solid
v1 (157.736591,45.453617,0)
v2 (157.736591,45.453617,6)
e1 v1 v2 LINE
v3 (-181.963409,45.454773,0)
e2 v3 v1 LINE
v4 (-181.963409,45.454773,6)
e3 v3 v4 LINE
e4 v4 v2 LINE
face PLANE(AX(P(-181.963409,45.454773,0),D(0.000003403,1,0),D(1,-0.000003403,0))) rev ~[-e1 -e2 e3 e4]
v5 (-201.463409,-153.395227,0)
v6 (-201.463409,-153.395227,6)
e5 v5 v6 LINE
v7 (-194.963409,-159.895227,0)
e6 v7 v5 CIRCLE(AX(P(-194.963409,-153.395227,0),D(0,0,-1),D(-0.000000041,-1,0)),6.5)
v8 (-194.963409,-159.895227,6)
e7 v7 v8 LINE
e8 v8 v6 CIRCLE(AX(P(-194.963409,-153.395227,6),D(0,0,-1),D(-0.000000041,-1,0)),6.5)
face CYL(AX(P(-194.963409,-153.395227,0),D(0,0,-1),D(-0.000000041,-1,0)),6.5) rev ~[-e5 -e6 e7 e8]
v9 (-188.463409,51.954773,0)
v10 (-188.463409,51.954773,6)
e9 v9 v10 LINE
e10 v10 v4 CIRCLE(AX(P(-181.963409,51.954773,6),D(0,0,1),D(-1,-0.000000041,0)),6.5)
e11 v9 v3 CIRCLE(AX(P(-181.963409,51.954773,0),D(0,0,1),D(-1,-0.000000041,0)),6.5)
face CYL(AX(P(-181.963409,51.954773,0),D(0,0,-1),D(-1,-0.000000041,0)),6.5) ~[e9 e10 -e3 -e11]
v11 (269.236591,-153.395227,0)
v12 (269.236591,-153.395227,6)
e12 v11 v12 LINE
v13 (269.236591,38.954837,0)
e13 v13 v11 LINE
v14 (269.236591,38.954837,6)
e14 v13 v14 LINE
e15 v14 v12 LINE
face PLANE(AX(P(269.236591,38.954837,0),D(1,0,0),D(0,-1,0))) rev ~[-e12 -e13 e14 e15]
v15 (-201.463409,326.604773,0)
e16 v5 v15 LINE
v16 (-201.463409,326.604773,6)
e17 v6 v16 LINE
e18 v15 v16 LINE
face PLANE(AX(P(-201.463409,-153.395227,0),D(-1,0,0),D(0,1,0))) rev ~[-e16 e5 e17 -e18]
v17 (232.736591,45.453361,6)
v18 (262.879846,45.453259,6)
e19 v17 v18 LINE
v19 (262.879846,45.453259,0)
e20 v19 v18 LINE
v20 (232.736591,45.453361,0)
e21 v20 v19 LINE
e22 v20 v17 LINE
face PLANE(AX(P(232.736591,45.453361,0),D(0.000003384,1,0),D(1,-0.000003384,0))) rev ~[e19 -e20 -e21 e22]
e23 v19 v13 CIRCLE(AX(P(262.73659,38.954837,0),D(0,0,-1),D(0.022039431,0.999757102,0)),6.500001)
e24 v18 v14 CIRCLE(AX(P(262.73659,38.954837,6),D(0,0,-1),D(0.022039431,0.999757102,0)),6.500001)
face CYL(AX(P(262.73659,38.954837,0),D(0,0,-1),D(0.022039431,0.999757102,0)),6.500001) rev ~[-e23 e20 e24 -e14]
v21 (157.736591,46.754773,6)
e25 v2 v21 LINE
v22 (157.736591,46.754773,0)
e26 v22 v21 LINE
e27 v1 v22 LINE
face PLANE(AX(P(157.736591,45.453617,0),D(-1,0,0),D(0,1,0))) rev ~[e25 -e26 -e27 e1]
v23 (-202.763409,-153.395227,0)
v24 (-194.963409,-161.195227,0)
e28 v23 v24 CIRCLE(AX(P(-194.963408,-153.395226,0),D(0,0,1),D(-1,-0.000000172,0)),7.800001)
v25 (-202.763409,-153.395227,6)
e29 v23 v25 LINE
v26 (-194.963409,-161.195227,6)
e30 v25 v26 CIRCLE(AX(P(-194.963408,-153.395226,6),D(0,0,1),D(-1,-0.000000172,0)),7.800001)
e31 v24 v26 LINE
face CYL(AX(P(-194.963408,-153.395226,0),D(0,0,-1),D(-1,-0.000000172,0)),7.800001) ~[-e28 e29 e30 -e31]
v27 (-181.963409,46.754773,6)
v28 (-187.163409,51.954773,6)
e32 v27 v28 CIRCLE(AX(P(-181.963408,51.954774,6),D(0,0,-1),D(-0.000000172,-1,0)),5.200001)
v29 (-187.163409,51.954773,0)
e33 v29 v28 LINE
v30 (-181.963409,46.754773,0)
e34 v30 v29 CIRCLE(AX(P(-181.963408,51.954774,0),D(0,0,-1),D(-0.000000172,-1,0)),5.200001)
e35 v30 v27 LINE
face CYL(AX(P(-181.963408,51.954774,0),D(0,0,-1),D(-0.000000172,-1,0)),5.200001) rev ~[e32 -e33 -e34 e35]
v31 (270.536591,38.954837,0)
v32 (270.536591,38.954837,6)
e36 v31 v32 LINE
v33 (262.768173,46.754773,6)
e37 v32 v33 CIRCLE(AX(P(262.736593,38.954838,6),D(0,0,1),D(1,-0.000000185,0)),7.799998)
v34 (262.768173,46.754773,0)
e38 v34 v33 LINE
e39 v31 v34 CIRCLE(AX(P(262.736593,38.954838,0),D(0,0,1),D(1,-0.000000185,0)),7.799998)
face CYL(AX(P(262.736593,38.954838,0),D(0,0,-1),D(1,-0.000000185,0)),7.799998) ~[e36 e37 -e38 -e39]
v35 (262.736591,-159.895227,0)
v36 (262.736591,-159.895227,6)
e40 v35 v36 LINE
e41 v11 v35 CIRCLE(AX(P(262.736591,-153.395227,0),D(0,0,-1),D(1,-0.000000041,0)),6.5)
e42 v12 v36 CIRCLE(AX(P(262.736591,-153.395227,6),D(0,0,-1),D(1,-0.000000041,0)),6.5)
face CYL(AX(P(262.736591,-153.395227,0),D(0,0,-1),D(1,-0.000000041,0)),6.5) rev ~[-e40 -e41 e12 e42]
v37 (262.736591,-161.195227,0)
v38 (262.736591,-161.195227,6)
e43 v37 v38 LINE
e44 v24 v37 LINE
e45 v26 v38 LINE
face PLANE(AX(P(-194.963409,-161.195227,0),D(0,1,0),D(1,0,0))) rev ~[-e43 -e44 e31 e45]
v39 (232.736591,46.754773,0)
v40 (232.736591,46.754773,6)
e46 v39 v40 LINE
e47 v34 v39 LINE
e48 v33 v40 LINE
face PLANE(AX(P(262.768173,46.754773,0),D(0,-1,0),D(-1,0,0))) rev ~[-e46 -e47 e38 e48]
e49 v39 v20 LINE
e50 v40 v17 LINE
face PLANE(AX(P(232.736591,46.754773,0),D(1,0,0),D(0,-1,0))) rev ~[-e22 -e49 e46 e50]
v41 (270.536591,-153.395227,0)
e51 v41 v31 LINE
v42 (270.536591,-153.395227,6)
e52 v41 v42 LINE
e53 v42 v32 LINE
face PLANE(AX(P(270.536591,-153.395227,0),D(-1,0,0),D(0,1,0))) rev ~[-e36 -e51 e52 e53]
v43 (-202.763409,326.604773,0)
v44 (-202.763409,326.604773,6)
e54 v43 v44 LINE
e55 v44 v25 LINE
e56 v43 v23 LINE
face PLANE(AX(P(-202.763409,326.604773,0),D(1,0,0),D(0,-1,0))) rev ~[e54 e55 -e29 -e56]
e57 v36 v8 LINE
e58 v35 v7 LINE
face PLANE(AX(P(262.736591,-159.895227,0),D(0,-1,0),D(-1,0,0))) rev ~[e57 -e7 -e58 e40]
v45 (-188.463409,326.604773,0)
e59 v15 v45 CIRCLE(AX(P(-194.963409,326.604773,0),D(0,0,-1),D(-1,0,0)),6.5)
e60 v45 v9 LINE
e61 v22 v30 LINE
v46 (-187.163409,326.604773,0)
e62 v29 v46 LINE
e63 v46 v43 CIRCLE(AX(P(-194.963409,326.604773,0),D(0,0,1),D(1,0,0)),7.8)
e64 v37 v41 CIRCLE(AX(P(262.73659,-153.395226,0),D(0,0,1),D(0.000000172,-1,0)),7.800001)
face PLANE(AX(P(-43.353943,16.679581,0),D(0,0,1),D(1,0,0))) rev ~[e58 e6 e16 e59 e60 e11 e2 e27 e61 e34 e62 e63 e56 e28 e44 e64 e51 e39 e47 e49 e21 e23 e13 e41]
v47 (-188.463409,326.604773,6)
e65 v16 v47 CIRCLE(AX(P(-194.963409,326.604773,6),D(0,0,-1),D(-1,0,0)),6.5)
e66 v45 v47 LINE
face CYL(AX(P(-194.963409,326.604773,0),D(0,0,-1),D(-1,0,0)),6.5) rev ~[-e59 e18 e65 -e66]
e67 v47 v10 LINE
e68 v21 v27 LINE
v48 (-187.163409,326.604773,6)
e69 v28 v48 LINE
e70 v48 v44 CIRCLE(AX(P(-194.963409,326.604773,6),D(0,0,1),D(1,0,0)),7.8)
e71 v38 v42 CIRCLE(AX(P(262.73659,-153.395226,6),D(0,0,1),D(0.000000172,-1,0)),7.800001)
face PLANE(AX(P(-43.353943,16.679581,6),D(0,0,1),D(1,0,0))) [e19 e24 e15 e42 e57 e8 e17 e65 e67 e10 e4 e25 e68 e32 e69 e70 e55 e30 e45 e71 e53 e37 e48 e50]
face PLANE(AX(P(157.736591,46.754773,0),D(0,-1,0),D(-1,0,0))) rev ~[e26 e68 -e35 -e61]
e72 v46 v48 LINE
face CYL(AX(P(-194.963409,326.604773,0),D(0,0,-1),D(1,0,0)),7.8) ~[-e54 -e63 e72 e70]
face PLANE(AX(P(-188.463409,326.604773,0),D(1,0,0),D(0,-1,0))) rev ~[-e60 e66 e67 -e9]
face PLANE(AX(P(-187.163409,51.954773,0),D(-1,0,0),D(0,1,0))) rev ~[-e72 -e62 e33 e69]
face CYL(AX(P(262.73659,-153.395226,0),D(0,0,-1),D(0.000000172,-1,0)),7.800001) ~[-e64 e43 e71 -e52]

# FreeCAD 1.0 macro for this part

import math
import FreeCAD as App
import Part
import Sketcher

V = App.Vector
Q = App.Units.Quantity

doc = App.newDocument("Part")
params = doc.addObject("Spreadsheet::Sheet", "Params")
for row, (alias, value) in enumerate([
    ("sketch1_radius", "6.5 mm"),
    ("sketch1_radius2", "5.200001 mm"),
    ("sketch1_height", "480 mm"),
    ("sketch1_width", "339.7 mm"),
    ("sketch1_width2", "457.7 mm"),
    ("pad1_length", "6 mm"),
], start=1):
    params.set(f"A{row}", alias)
    params.set(f"B{row}", "=" + value)
    params.setAlias(f"B{row}", alias)

body = doc.addObject("PartDesign::Body", "Body")

sketch1 = body.newObject("Sketcher::SketchObject", "Sketch")
sketch1.AttachmentSupport = (doc.getObject("XY_Plane"), [""])
sketch1.MapMode = "FlatFace"
sketch1.addGeometry([
    Part.ArcOfCircle(Part.Circle(V(-195, 326.6, 0), V(0, 0, 1), 6.5), math.radians(0), math.radians(180)),
    Part.LineSegment(V(-188.5, 326.6, 0), V(-188.5, 52, 0)),
    Part.ArcOfCircle(Part.Circle(V(-182, 52, 0), V(0, 0, 1), 6.5), math.radians(-180), math.radians(-90)),
    Part.LineSegment(V(-182, 45.5, 0), V(157.7, 45.5, 0)),
    Part.LineSegment(V(157.7, 45.5, 0), V(157.7, 46.8, 0)),
    Part.LineSegment(V(157.7, 46.8, 0), V(-182, 46.8, 0)),
    Part.ArcOfCircle(Part.Circle(V(-182, 52, 0), V(0, 0, 1), 5.2), math.radians(-180), math.radians(-90)),
    Part.LineSegment(V(-187.2, 52, 0), V(-187.2, 326.6, 0)),
    Part.ArcOfCircle(Part.Circle(V(-195, 326.6, 0), V(0, 0, 1), 7.8), math.radians(0), math.radians(180)),
    Part.LineSegment(V(-202.8, 326.6, 0), V(-202.8, -153.4, 0)),
    Part.ArcOfCircle(Part.Circle(V(-195, -153.4, 0), V(0, 0, 1), 7.8), math.radians(-180), math.radians(-90)),
    Part.LineSegment(V(-195, -161.2, 0), V(262.7, -161.2, 0)),
    Part.ArcOfCircle(Part.Circle(V(262.7, -153.4, 0), V(0, 0, 1), 7.8), math.radians(-90), math.radians(0)),
    Part.LineSegment(V(270.5, -153.4, 0), V(270.5, 39, 0)),
    Part.ArcOfCircle(Part.Circle(V(262.7, 39, 0), V(0, 0, 1), 7.8), math.radians(0), math.radians(90)),
    Part.LineSegment(V(262.8, 46.8, 0), V(232.7, 46.8, 0)),
    Part.LineSegment(V(232.7, 46.8, 0), V(232.7, 45.5, 0)),
    Part.LineSegment(V(232.7, 45.5, 0), V(262.9, 45.5, 0)),
    Part.ArcOfCircle(Part.Circle(V(262.7, 39, 0), V(0, 0, 1), 6.5), math.radians(0), math.radians(89)),
    Part.LineSegment(V(269.2, 39, 0), V(269.2, -153.4, 0)),
    Part.ArcOfCircle(Part.Circle(V(262.7, -153.4, 0), V(0, 0, 1), 6.5), math.radians(-90), math.radians(0)),
    Part.LineSegment(V(262.7, -159.9, 0), V(-195, -159.9, 0)),
    Part.ArcOfCircle(Part.Circle(V(-195, -153.4, 0), V(0, 0, 1), 6.5), math.radians(-180), math.radians(-90)),
    Part.LineSegment(V(-201.5, -153.4, 0), V(-201.5, 326.6, 0)),
], False)
sketch1.addConstraint([
    Sketcher.Constraint("Tangent", 0, 1, 1, 1),
    Sketcher.Constraint("Tangent", 1, 2, 2, 1),
    Sketcher.Constraint("Coincident", 2, 2, 3, 1),
    Sketcher.Constraint("Coincident", 3, 2, 4, 1),
    Sketcher.Constraint("Coincident", 4, 2, 5, 1),
    Sketcher.Constraint("Tangent", 5, 2, 6, 2),
    Sketcher.Constraint("Tangent", 6, 1, 7, 1),
    Sketcher.Constraint("Tangent", 7, 2, 8, 1),
    Sketcher.Constraint("Tangent", 8, 2, 9, 1),
    Sketcher.Constraint("Tangent", 9, 2, 10, 1),
    Sketcher.Constraint("Tangent", 10, 2, 11, 1),
    Sketcher.Constraint("Tangent", 11, 2, 12, 1),
    Sketcher.Constraint("Tangent", 12, 2, 13, 1),
    Sketcher.Constraint("Tangent", 13, 2, 14, 1),
    Sketcher.Constraint("Coincident", 14, 2, 15, 1),
    Sketcher.Constraint("Coincident", 15, 2, 16, 1),
    Sketcher.Constraint("Coincident", 16, 2, 17, 1),
    Sketcher.Constraint("Coincident", 17, 2, 18, 2),
    Sketcher.Constraint("Tangent", 18, 1, 19, 1),
    Sketcher.Constraint("Tangent", 19, 2, 20, 2),
    Sketcher.Constraint("Tangent", 20, 1, 21, 1),
    Sketcher.Constraint("Tangent", 21, 2, 22, 2),
    Sketcher.Constraint("Tangent", 22, 1, 23, 1),
    Sketcher.Constraint("Tangent", 23, 2, 0, 2),
    Sketcher.Constraint("Vertical", 1),
    Sketcher.Constraint("Vertical", 4),
    Sketcher.Constraint("Horizontal", 5),
    Sketcher.Constraint("Vertical", 7),
    Sketcher.Constraint("Vertical", 9),
    Sketcher.Constraint("Horizontal", 11),
    Sketcher.Constraint("Vertical", 13),
    Sketcher.Constraint("Horizontal", 15),
    Sketcher.Constraint("Vertical", 16),
    Sketcher.Constraint("Vertical", 19),
    Sketcher.Constraint("Horizontal", 21),
    Sketcher.Constraint("Vertical", 23),
    Sketcher.Constraint("Coincident", 6, 3, 2, 3),
    Sketcher.Constraint("Coincident", 8, 3, 0, 3),
    Sketcher.Constraint("Coincident", 18, 3, 14, 3),
    Sketcher.Constraint("Coincident", 20, 3, 12, 3),
    Sketcher.Constraint("Coincident", 22, 3, 10, 3),
    Sketcher.Constraint("Equal", 0, 2),
    Sketcher.Constraint("Equal", 8, 10),
    Sketcher.Constraint("Equal", 10, 12),
    Sketcher.Constraint("Equal", 8, 14),
    Sketcher.Constraint("Parallel", 3, 17),
    Sketcher.Constraint("Horizontal", 5, 2, 14, 2),
    Sketcher.Constraint("Vertical", 6, 3, 2, 2),
    Sketcher.Constraint("Radius", 0, Q("6.5 mm")),
    Sketcher.Constraint("Radius", 6, Q("5.200001 mm")),
    Sketcher.Constraint("DistanceY", 9, 2, 9, 1, Q("480 mm")),
    Sketcher.Constraint("DistanceX", 5, 2, 5, 1, Q("339.7 mm")),
    Sketcher.Constraint("DistanceX", 11, 1, 11, 2, Q("457.7 mm")),
    Sketcher.Constraint("DistanceX", 15, 2, 18, 3, Q("29.999999 mm")),
    Sketcher.Constraint("DistanceY", 1, 2, 1, 1, Q("274.65 mm")),
    Sketcher.Constraint("DistanceX", 15, 2, 15, 1, Q("30.031582 mm")),
    Sketcher.Constraint("DistanceY", 16, 2, 16, 1, Q("1.301412 mm")),
    Sketcher.Constraint("DistanceY", 17, 2, 16, 2, Q("0.000102 mm")),
    Sketcher.Constraint("DistanceX", 0, 3, -1, 1, Q("194.963409 mm")),
    Sketcher.Constraint("DistanceY", -1, 1, 14, 3, Q("38.954838 mm")),
])
sketch1.setExpression("Constraints[48]", "Params.sketch1_radius")
sketch1.setExpression("Constraints[49]", "Params.sketch1_radius2")
sketch1.setExpression("Constraints[50]", "Params.sketch1_height")
sketch1.setExpression("Constraints[51]", "Params.sketch1_width")
sketch1.setExpression("Constraints[52]", "Params.sketch1_width2")
pad1 = body.newObject("PartDesign::Pad", "Pad")
pad1.Profile = sketch1
pad1.setExpression("Length", "Params.pad1_length")

doc.recompute()
